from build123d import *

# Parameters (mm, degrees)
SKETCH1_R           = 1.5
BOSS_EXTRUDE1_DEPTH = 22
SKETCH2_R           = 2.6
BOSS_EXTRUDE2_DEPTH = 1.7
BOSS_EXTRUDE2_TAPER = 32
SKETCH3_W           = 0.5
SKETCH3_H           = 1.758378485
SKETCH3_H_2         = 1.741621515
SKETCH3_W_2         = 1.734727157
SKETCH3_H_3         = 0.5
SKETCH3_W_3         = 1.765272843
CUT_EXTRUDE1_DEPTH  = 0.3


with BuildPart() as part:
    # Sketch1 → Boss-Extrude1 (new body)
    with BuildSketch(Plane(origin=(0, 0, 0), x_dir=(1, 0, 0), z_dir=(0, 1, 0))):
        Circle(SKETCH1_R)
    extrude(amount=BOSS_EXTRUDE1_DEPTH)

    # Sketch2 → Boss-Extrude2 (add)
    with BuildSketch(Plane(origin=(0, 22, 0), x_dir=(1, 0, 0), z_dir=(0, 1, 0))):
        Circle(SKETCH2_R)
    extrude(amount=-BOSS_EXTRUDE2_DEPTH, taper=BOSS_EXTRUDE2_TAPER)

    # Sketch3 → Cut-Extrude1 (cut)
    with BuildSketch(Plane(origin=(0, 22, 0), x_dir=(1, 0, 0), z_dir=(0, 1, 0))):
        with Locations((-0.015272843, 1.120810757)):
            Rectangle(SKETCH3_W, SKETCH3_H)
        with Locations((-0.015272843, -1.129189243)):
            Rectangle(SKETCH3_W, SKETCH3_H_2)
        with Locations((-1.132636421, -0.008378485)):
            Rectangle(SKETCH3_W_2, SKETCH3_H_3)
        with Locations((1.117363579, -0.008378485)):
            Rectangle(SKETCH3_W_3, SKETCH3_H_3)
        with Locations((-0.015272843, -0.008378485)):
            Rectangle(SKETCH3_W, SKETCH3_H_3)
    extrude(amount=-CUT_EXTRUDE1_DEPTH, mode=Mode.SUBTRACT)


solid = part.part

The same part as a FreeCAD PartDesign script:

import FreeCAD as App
import Part
import Sketcher
from FreeCAD import Vector


def add_polygon(sketch, points):
    """Adds a closed chain of lines whose ends are joined by coincident constraints."""
    first, n = sketch.GeometryCount, len(points)
    for a, b in zip(points, points[1:] + points[:1]):
        sketch.addGeometry(Part.LineSegment(App.Vector(*a, 0), App.Vector(*b, 0)), False)
    for i in range(n):
        sketch.addConstraint(Sketcher.Constraint("Coincident", first + i, 2, first + (i + 1) % n, 1))

doc = App.newDocument("Part")
body = doc.addObject("PartDesign::Body", "Body")

# Sketch on XZ plane
sketch1 = body.newObject("Sketcher::SketchObject", "Sketch")
sketch1.AttachmentSupport = (doc.getObject("XZ_Plane"), [""])
sketch1.MapMode = "FlatFace"
sketch1.addGeometry(Part.Circle(Vector(0, 0, 0), Vector(0, 0, 1), 1.5), False)
sketch1.addConstraint(Sketcher.Constraint("Coincident", 0, 3, -1, 1))
sketch1.addConstraint(Sketcher.Constraint("Diameter", 0, 3.0))
pad1 = body.newObject("PartDesign::Pad", "Pad")
pad1.Profile = sketch1
pad1.Length = 22
pad1.Reversed = True

# Sketch on XZ plane
sketch2 = body.newObject("Sketcher::SketchObject", "Sketch001")
sketch2.AttachmentSupport = (doc.getObject("XZ_Plane"), [""])
sketch2.MapMode = "FlatFace"
sketch2.AttachmentOffset = App.Placement(Vector(0, 0, -22), App.Rotation())
sketch2.addGeometry(Part.Circle(Vector(0, 0, 0), Vector(0, 0, 1), 2.6), False)
sketch2.addConstraint(Sketcher.Constraint("Coincident", 0, 3, -1, 1))
sketch2.addConstraint(Sketcher.Constraint("Diameter", 0, 5.2))
pad2 = body.newObject("PartDesign::Pad", "Pad001")
pad2.Profile = sketch2
pad2.Length = 1.7
pad2.TaperAngle = -32

# Sketch on XZ plane
sketch3 = body.newObject("Sketcher::SketchObject", "Sketch002")
sketch3.AttachmentSupport = (doc.getObject("XZ_Plane"), [""])
sketch3.MapMode = "FlatFace"
sketch3.AttachmentOffset = App.Placement(Vector(0, 0, -22), App.Rotation())
add_polygon(sketch3, [(-0.3, -2), (-0.3, -0.2), (-2, -0.2), (-2, 0.3), (-0.3, 0.3), (-0.3, 2), (0.2, 2), (0.2, 0.3), (2, 0.3), (2, -0.2), (0.2, -0.2), (0.2, -2)])  # lines 0-11
sketch3.addConstraint(Sketcher.Constraint("Vertical", 0))
sketch3.addConstraint(Sketcher.Constraint("Horizontal", 1))
sketch3.addConstraint(Sketcher.Constraint("Vertical", 2))
sketch3.addConstraint(Sketcher.Constraint("Horizontal", 3))
sketch3.addConstraint(Sketcher.Constraint("Vertical", 4))
sketch3.addConstraint(Sketcher.Constraint("Horizontal", 5))
sketch3.addConstraint(Sketcher.Constraint("Vertical", 6))
sketch3.addConstraint(Sketcher.Constraint("Horizontal", 7))
sketch3.addConstraint(Sketcher.Constraint("Vertical", 8))
sketch3.addConstraint(Sketcher.Constraint("Horizontal", 9))
sketch3.addConstraint(Sketcher.Constraint("Vertical", 10))
sketch3.addConstraint(Sketcher.Constraint("Horizontal", 11))
sketch3.addConstraint(Sketcher.Constraint("Symmetric", 2, 2, 7, 2, -2))
sketch3.addConstraint(Sketcher.Constraint("Symmetric", 5, 2, 10, 2, -1))
sketch3.addConstraint(Sketcher.Constraint("Horizontal", 1, 2, 8, 2))
sketch3.addConstraint(Sketcher.Constraint("Vertical", 0, 2, 3, 2))
sketch3.addConstraint(Sketcher.Constraint("Equal", 11, 2))
sketch3.addConstraint(Sketcher.Constraint("DistanceX", 5, 1, 5, 2, 0.5))
sketch3.addConstraint(Sketcher.Constraint("DistanceX", 1, 2, -1, 1, 2.0))
sketch3.addConstraint(Sketcher.Constraint("DistanceY", -1, 1, 4, 2, 2.0))
sketch3.addConstraint(Sketcher.Constraint("DistanceY", 0, 1, 0, 2, 1.758378))
sketch3.addConstraint(Sketcher.Constraint("DistanceX", 1, 2, 1, 1, 1.734727))
pocket1 = body.newObject("PartDesign::Pocket", "Pocket")
pocket1.Profile = sketch3
pocket1.Length = 0.3
pocket1.Reversed = True

doc.recompute()
